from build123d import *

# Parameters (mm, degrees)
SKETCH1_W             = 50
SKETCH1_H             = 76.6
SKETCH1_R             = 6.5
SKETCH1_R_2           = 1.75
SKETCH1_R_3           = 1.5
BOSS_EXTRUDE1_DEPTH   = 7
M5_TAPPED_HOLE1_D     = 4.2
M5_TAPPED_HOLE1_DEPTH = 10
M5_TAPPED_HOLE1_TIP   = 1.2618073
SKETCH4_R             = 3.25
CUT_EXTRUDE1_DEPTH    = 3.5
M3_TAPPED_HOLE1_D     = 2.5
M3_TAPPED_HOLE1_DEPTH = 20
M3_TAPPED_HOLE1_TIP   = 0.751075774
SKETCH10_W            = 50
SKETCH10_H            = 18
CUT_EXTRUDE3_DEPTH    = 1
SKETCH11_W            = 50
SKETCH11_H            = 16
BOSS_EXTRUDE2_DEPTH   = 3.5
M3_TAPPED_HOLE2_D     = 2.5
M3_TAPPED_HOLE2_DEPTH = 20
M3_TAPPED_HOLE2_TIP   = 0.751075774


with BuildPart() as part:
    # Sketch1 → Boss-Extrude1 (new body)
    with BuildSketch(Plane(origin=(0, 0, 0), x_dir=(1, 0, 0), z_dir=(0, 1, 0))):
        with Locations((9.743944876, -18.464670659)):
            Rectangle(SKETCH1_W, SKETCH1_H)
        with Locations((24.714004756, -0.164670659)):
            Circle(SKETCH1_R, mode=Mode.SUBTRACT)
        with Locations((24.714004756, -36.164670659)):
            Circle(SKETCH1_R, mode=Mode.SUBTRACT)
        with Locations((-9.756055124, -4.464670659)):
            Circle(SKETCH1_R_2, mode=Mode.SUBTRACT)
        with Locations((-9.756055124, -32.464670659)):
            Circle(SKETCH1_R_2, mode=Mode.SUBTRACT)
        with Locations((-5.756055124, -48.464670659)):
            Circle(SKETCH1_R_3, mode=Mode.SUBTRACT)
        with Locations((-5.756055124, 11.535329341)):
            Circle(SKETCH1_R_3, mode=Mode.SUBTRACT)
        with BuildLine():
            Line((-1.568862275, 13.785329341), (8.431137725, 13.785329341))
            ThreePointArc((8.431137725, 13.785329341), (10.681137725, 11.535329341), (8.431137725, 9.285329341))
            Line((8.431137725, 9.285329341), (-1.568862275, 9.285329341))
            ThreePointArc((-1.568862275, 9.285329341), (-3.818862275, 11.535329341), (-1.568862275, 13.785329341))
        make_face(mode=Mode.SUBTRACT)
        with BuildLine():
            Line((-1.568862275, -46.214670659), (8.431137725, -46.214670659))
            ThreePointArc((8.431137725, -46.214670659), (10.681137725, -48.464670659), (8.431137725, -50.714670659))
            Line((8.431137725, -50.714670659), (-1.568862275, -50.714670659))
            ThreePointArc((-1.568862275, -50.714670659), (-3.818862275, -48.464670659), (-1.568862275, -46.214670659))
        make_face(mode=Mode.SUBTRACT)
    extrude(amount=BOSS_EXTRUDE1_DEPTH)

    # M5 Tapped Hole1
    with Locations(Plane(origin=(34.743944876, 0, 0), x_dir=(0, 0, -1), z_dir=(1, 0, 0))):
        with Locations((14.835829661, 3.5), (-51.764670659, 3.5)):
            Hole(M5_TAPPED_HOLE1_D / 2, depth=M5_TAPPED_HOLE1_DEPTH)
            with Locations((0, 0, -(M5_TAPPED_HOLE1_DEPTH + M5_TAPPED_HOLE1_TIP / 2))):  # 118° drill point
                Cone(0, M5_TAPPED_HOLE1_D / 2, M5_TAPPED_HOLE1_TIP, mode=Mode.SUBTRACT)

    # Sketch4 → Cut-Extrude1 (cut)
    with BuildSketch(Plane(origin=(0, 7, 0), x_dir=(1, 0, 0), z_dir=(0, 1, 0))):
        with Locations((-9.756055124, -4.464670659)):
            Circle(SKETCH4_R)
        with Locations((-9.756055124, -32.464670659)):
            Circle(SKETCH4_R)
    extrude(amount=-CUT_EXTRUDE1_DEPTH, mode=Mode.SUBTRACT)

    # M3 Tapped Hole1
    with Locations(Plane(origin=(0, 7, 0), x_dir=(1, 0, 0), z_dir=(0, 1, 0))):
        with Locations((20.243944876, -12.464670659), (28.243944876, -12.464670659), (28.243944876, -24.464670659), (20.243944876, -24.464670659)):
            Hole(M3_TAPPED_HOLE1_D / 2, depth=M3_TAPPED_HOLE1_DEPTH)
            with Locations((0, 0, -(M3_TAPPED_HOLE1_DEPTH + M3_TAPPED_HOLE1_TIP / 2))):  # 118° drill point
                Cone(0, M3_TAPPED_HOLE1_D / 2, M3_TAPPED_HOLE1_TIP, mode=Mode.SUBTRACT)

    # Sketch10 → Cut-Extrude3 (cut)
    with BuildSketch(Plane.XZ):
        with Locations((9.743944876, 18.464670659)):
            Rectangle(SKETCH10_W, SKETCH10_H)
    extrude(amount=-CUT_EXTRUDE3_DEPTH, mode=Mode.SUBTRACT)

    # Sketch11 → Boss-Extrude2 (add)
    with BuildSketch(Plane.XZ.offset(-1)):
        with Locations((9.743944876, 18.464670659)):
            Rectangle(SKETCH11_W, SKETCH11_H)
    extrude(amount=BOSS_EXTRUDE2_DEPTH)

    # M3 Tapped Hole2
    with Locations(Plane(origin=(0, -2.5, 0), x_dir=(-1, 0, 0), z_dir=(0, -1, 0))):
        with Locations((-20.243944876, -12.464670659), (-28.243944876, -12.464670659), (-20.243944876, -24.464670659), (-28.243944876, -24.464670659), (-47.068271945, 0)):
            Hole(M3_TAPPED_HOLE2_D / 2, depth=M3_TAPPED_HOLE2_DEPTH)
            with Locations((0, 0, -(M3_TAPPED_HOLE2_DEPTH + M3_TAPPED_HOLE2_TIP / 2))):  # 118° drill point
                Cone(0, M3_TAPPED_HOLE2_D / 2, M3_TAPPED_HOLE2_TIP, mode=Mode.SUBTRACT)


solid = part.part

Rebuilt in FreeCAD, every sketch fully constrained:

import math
import FreeCAD as App
import Part
import Sketcher

V = App.Vector

doc = App.newDocument("Part")
body = doc.addObject("PartDesign::Body", "Body")

# Sketch on XZ plane
sketch1 = body.newObject("Sketcher::SketchObject", "Sketch")
sketch1.AttachmentSupport = (doc.getObject("XZ_Plane"), [""])
sketch1.MapMode = "FlatFace"
sketch1.addGeometry(Part.LineSegment(V(-15.3, -19.8, 0), V(-15.3, 56.8, 0)), False)
sketch1.addGeometry(Part.LineSegment(V(-15.3, 56.8, 0), V(34.7, 56.8, 0)), False)
sketch1.addGeometry(Part.LineSegment(V(34.7, 56.8, 0), V(34.7, -19.8, 0)), False)
sketch1.addGeometry(Part.LineSegment(V(34.7, -19.8, 0), V(-15.3, -19.8, 0)), False)
sketch1.addGeometry(Part.Circle(V(-5.8, 48.5, 0), V(0, 0, 1), 1.5), False)
sketch1.addGeometry(Part.ArcOfCircle(Part.Circle(V(-1.6, 48.5, 0), V(0, 0, 1), 2.2), math.radians(90), math.radians(270)), False)
sketch1.addGeometry(Part.LineSegment(V(-1.6, 46.2, 0), V(8.4, 46.2, 0)), False)
sketch1.addGeometry(Part.ArcOfCircle(Part.Circle(V(8.4, 48.5, 0), V(0, 0, 1), 2.2), math.radians(-90), math.radians(90)), False)
sketch1.addGeometry(Part.LineSegment(V(8.4, 50.7, 0), V(-1.6, 50.7, 0)), False)
sketch1.addGeometry(Part.Circle(V(-9.8, 32.5, 0), V(0, 0, 1), 1.8), False)
sketch1.addGeometry(Part.Circle(V(24.7, 36.2, 0), V(0, 0, 1), 6.5), False)
sketch1.addGeometry(Part.Circle(V(-9.8, 4.5, 0), V(0, 0, 1), 1.8), False)
sketch1.addGeometry(Part.Circle(V(-5.8, -11.5, 0), V(0, 0, 1), 1.5), False)
sketch1.addGeometry(Part.ArcOfCircle(Part.Circle(V(-1.6, -11.5, 0), V(0, 0, 1), 2.2), math.radians(90), math.radians(270)), False)
sketch1.addGeometry(Part.LineSegment(V(-1.6, -13.8, 0), V(8.4, -13.8, 0)), False)
sketch1.addGeometry(Part.ArcOfCircle(Part.Circle(V(8.4, -11.5, 0), V(0, 0, 1), 2.2), math.radians(-90), math.radians(90)), False)
sketch1.addGeometry(Part.LineSegment(V(8.4, -9.3, 0), V(-1.6, -9.3, 0)), False)
sketch1.addGeometry(Part.Circle(V(24.7, 0.2, 0), V(0, 0, 1), 6.5), False)
sketch1.addConstraint(Sketcher.Constraint("Coincident", 0, 2, 1, 1))
sketch1.addConstraint(Sketcher.Constraint("Coincident", 1, 2, 2, 1))
sketch1.addConstraint(Sketcher.Constraint("Coincident", 2, 2, 3, 1))
sketch1.addConstraint(Sketcher.Constraint("Coincident", 3, 2, 0, 1))
sketch1.addConstraint(Sketcher.Constraint("Tangent", 5, 2, 6, 1))
sketch1.addConstraint(Sketcher.Constraint("Tangent", 6, 2, 7, 1))
sketch1.addConstraint(Sketcher.Constraint("Tangent", 7, 2, 8, 1))
sketch1.addConstraint(Sketcher.Constraint("Tangent", 8, 2, 5, 1))
sketch1.addConstraint(Sketcher.Constraint("Tangent", 13, 2, 14, 1))
sketch1.addConstraint(Sketcher.Constraint("Tangent", 14, 2, 15, 1))
sketch1.addConstraint(Sketcher.Constraint("Tangent", 15, 2, 16, 1))
sketch1.addConstraint(Sketcher.Constraint("Tangent", 16, 2, 13, 1))
sketch1.addConstraint(Sketcher.Constraint("Vertical", 0))
sketch1.addConstraint(Sketcher.Constraint("Horizontal", 1))
sketch1.addConstraint(Sketcher.Constraint("Vertical", 2))
sketch1.addConstraint(Sketcher.Constraint("Horizontal", 3))
sketch1.addConstraint(Sketcher.Constraint("Horizontal", 6))
sketch1.addConstraint(Sketcher.Constraint("Horizontal", 8))
sketch1.addConstraint(Sketcher.Constraint("Horizontal", 14))
sketch1.addConstraint(Sketcher.Constraint("Horizontal", 16))
sketch1.addConstraint(Sketcher.Constraint("Equal", 9, 11))
sketch1.addConstraint(Sketcher.Constraint("Equal", 4, 12))
sketch1.addConstraint(Sketcher.Constraint("Equal", 7, 13))
sketch1.addConstraint(Sketcher.Constraint("Equal", 10, 17))
sketch1.addConstraint(Sketcher.Constraint("Horizontal", 4, 3, 5, 3))
sketch1.addConstraint(Sketcher.Constraint("Horizontal", 12, 3, 13, 3))
sketch1.addConstraint(Sketcher.Constraint("Vertical", 9, 3, 11, 3))
sketch1.addConstraint(Sketcher.Constraint("Vertical", 4, 3, 12, 3))
sketch1.addConstraint(Sketcher.Constraint("Vertical", 5, 3, 13, 3))
sketch1.addConstraint(Sketcher.Constraint("Vertical", 7, 3, 15, 3))
sketch1.addConstraint(Sketcher.Constraint("Vertical", 10, 3, 17, 3))
sketch1.addConstraint(Sketcher.Constraint("Diameter", 4, 3.0))
sketch1.addConstraint(Sketcher.Constraint("Diameter", 10, 13.0))
sketch1.addConstraint(Sketcher.Constraint("Diameter", 9, 3.5))
sketch1.addConstraint(Sketcher.Constraint("DistanceX", 1, 1, 1, 2, 50.0))
sketch1.addConstraint(Sketcher.Constraint("DistanceX", 6, 1, 6, 2, 10.0))
sketch1.addConstraint(Sketcher.Constraint("Radius", 5, 2.25))
sketch1.addConstraint(Sketcher.Constraint("DistanceY", 0, 1, 0, 2, 76.6))
sketch1.addConstraint(Sketcher.Constraint("DistanceX", 9, 3, 4, 3, 4.0))
sketch1.addConstraint(Sketcher.Constraint("DistanceY", 9, 3, 4, 3, 16.0))
sketch1.addConstraint(Sketcher.Constraint("DistanceY", 11, 3, 9, 3, 28.0))
sketch1.addConstraint(Sketcher.Constraint("DistanceY", 12, 3, 11, 3, 16.0))
sketch1.addConstraint(Sketcher.Constraint("DistanceY", 17, 3, 10, 3, 36.0))
sketch1.addConstraint(Sketcher.Constraint("DistanceY", 2, 2, 17, 3, 20.0))
sketch1.addConstraint(Sketcher.Constraint("DistanceY", 10, 3, 7, 3, 12.3))
sketch1.addConstraint(Sketcher.Constraint("DistanceX", 0, 2, 4, 3, 9.5))
sketch1.addConstraint(Sketcher.Constraint("DistanceY", -1, 1, 4, 3, 48.464671))
sketch1.addConstraint(Sketcher.Constraint("DistanceX", 4, 3, 10, 3, 30.47006))
sketch1.addConstraint(Sketcher.Constraint("DistanceX", 4, 3, -1, 1, 5.756055))
sketch1.addConstraint(Sketcher.Constraint("DistanceX", 5, 3, -1, 1, 1.568862))
pad1 = body.newObject("PartDesign::Pad", "Pad")
pad1.Profile = sketch1
pad1.Length = 7
pad1.Reversed = True

# Sketch on YZ plane
sketch2 = body.newObject("Sketcher::SketchObject", "Sketch001")
sketch2.AttachmentSupport = (doc.getObject("YZ_Plane"), [""])
sketch2.MapMode = "FlatFace"
sketch2.AttachmentOffset = App.Placement(V(0, 0, 34.743945), App.Rotation())
sketch2.addGeometry(Part.Circle(V(3.5, -14.8, 0), V(0, 0, 1), 2.1), False)
sketch2.addGeometry(Part.Circle(V(3.5, 51.8, 0), V(0, 0, 1), 2.1), False)
sketch2.addConstraint(Sketcher.Constraint("Equal", 0, 1))
sketch2.addConstraint(Sketcher.Constraint("Vertical", 0, 3, 1, 3))
sketch2.addConstraint(Sketcher.Constraint("Diameter", 0, 4.2))
sketch2.addConstraint(Sketcher.Constraint("DistanceX", -1, 1, 0, 3, 3.5))
sketch2.addConstraint(Sketcher.Constraint("DistanceY", 0, 3, 1, 3, 66.6005))
sketch2.addConstraint(Sketcher.Constraint("DistanceY", 0, 3, -1, 1, 14.83583))
doc.recompute()
hole = body.newObject("PartDesign::Hole", "Hole")
hole.Profile = sketch2
hole.ThreadType = "None"
hole.Diameter = 4.2
hole.DepthType = "Dimension"
hole.Depth = 10
hole.DrillPoint = "Angled"
hole.DrillPointAngle = 118

# Sketch on XZ plane
sketch3 = body.newObject("Sketcher::SketchObject", "Sketch002")
sketch3.AttachmentSupport = (doc.getObject("XZ_Plane"), [""])
sketch3.MapMode = "FlatFace"
sketch3.AttachmentOffset = App.Placement(V(0, 0, -7), App.Rotation())
sketch3.addGeometry(Part.Circle(V(-9.8, 4.5, 0), V(0, 0, 1), 3.2), False)
sketch3.addGeometry(Part.Circle(V(-9.8, 32.5, 0), V(0, 0, 1), 3.2), False)
sketch3.addConstraint(Sketcher.Constraint("Equal", 0, 1))
sketch3.addConstraint(Sketcher.Constraint("Vertical", 0, 3, 1, 3))
sketch3.addConstraint(Sketcher.Constraint("Diameter", 0, 6.5))
sketch3.addConstraint(Sketcher.Constraint("DistanceY", 0, 3, 1, 3, 28.0))
sketch3.addConstraint(Sketcher.Constraint("DistanceY", -1, 1, 0, 3, 4.464671))
sketch3.addConstraint(Sketcher.Constraint("DistanceX", 0, 3, -1, 1, 9.756055))
pocket1 = body.newObject("PartDesign::Pocket", "Pocket")
pocket1.Profile = sketch3
pocket1.Length = 3.5
pocket1.Reversed = True

# Sketch on XZ plane
sketch4 = body.newObject("Sketcher::SketchObject", "Sketch003")
sketch4.AttachmentSupport = (doc.getObject("XZ_Plane"), [""])
sketch4.MapMode = "FlatFace"
sketch4.AttachmentOffset = App.Placement(V(0, 0, -7), App.Rotation())
sketch4.addGeometry(Part.Circle(V(20.2, 12.5, 0), V(0, 0, 1), 1.2), False)
sketch4.addGeometry(Part.Circle(V(28.2, 12.5, 0), V(0, 0, 1), 1.2), False)
sketch4.addGeometry(Part.Circle(V(28.2, 24.5, 0), V(0, 0, 1), 1.2), False)
sketch4.addGeometry(Part.Circle(V(20.2, 24.5, 0), V(0, 0, 1), 1.2), False)
sketch4.addConstraint(Sketcher.Constraint("Equal", 0, 1))
sketch4.addConstraint(Sketcher.Constraint("Equal", 1, 2))
sketch4.addConstraint(Sketcher.Constraint("Equal", 2, 3))
sketch4.addConstraint(Sketcher.Constraint("Horizontal", 0, 3, 1, 3))
sketch4.addConstraint(Sketcher.Constraint("Horizontal", 2, 3, 3, 3))
sketch4.addConstraint(Sketcher.Constraint("Vertical", 1, 3, 2, 3))
sketch4.addConstraint(Sketcher.Constraint("Vertical", 0, 3, 3, 3))
sketch4.addConstraint(Sketcher.Constraint("Diameter", 0, 2.5))
sketch4.addConstraint(Sketcher.Constraint("DistanceX", 0, 3, 1, 3, 8.0))
sketch4.addConstraint(Sketcher.Constraint("DistanceY", 1, 3, 2, 3, 12.0))
sketch4.addConstraint(Sketcher.Constraint("DistanceY", -1, 1, 0, 3, 12.464671))
sketch4.addConstraint(Sketcher.Constraint("DistanceX", -1, 1, 0, 3, 20.243945))
doc.recompute()
hole2 = body.newObject("PartDesign::Hole", "Hole001")
hole2.Profile = sketch4
hole2.ThreadType = "None"
hole2.Diameter = 2.5
hole2.DepthType = "Dimension"
hole2.Depth = 20
hole2.DrillPoint = "Angled"
hole2.DrillPointAngle = 118
hole2.Reversed = True

# Sketch on XZ plane
sketch5 = body.newObject("Sketcher::SketchObject", "Sketch004")
sketch5.AttachmentSupport = (doc.getObject("XZ_Plane"), [""])
sketch5.MapMode = "FlatFace"
sketch5.addGeometry(Part.LineSegment(V(-15, 27, 0), V(-15, 9, 0)), False)
sketch5.addGeometry(Part.LineSegment(V(-15, 9, 0), V(35, 9, 0)), False)
sketch5.addGeometry(Part.LineSegment(V(35, 9, 0), V(35, 27, 0)), False)
sketch5.addGeometry(Part.LineSegment(V(35, 27, 0), V(-15, 27, 0)), False)
sketch5.addConstraint(Sketcher.Constraint("Coincident", 0, 2, 1, 1))
sketch5.addConstraint(Sketcher.Constraint("Coincident", 1, 2, 2, 1))
sketch5.addConstraint(Sketcher.Constraint("Coincident", 2, 2, 3, 1))
sketch5.addConstraint(Sketcher.Constraint("Coincident", 3, 2, 0, 1))
sketch5.addConstraint(Sketcher.Constraint("Vertical", 0))
sketch5.addConstraint(Sketcher.Constraint("Horizontal", 1))
sketch5.addConstraint(Sketcher.Constraint("Vertical", 2))
sketch5.addConstraint(Sketcher.Constraint("Horizontal", 3))
sketch5.addConstraint(Sketcher.Constraint("DistanceX", 1, 1, 1, 2, 50.0))
sketch5.addConstraint(Sketcher.Constraint("DistanceY", 0, 2, 0, 1, 18.0))
sketch5.addConstraint(Sketcher.Constraint("DistanceY", -1, 1, 0, 2, 9.464671))
sketch5.addConstraint(Sketcher.Constraint("DistanceX", 0, 2, -1, 1, 15.256055))
pocket2 = body.newObject("PartDesign::Pocket", "Pocket001")
pocket2.Profile = sketch5
pocket2.Length = 1

# Sketch on XZ plane
sketch6 = body.newObject("Sketcher::SketchObject", "Sketch005")
sketch6.AttachmentSupport = (doc.getObject("XZ_Plane"), [""])
sketch6.MapMode = "FlatFace"
sketch6.AttachmentOffset = App.Placement(V(0, 0, -1), App.Rotation())
sketch6.addGeometry(Part.LineSegment(V(-15, 26, 0), V(-15, 10, 0)), False)
sketch6.addGeometry(Part.LineSegment(V(-15, 10, 0), V(35, 10, 0)), False)
sketch6.addGeometry(Part.LineSegment(V(35, 10, 0), V(35, 26, 0)), False)
sketch6.addGeometry(Part.LineSegment(V(35, 26, 0), V(-15, 26, 0)), False)
sketch6.addConstraint(Sketcher.Constraint("Coincident", 0, 2, 1, 1))
sketch6.addConstraint(Sketcher.Constraint("Coincident", 1, 2, 2, 1))
sketch6.addConstraint(Sketcher.Constraint("Coincident", 2, 2, 3, 1))
sketch6.addConstraint(Sketcher.Constraint("Coincident", 3, 2, 0, 1))
sketch6.addConstraint(Sketcher.Constraint("Vertical", 0))
sketch6.addConstraint(Sketcher.Constraint("Horizontal", 1))
sketch6.addConstraint(Sketcher.Constraint("Vertical", 2))
sketch6.addConstraint(Sketcher.Constraint("Horizontal", 3))
sketch6.addConstraint(Sketcher.Constraint("DistanceX", 1, 1, 1, 2, 50.0))
sketch6.addConstraint(Sketcher.Constraint("DistanceY", 0, 2, 0, 1, 16.0))
sketch6.addConstraint(Sketcher.Constraint("DistanceY", -1, 1, 0, 2, 10.464671))
sketch6.addConstraint(Sketcher.Constraint("DistanceX", 0, 2, -1, 1, 15.256055))
pad2 = body.newObject("PartDesign::Pad", "Pad001")
pad2.Profile = sketch6
pad2.Length = 3.5

# Sketch on XZ plane
sketch7 = body.newObject("Sketcher::SketchObject", "Sketch006")
sketch7.AttachmentSupport = (doc.getObject("XZ_Plane"), [""])
sketch7.MapMode = "FlatFace"
sketch7.AttachmentOffset = App.Placement(V(0, 0, 2.5), App.Rotation())
sketch7.addGeometry(Part.Circle(V(20.2, 12.5, 0), V(0, 0, 1), 1.2), False)
sketch7.addGeometry(Part.Circle(V(28.2, 12.5, 0), V(0, 0, 1), 1.2), False)
sketch7.addGeometry(Part.Circle(V(20.2, 24.5, 0), V(0, 0, 1), 1.2), False)
sketch7.addGeometry(Part.Circle(V(28.2, 24.5, 0), V(0, 0, 1), 1.2), False)
sketch7.addGeometry(Part.Circle(V(47.1, 0, 0), V(0, 0, 1), 1.2), False)
sketch7.addConstraint(Sketcher.Constraint("Equal", 0, 1))
sketch7.addConstraint(Sketcher.Constraint("Equal", 1, 2))
sketch7.addConstraint(Sketcher.Constraint("Equal", 2, 3))
sketch7.addConstraint(Sketcher.Constraint("Equal", 3, 4))
sketch7.addConstraint(Sketcher.Constraint("PointOnObject", 4, 3, -1))
sketch7.addConstraint(Sketcher.Constraint("Horizontal", 0, 3, 1, 3))
sketch7.addConstraint(Sketcher.Constraint("Horizontal", 2, 3, 3, 3))
sketch7.addConstraint(Sketcher.Constraint("Vertical", 0, 3, 2, 3))
sketch7.addConstraint(Sketcher.Constraint("Vertical", 1, 3, 3, 3))
sketch7.addConstraint(Sketcher.Constraint("Diameter", 0, 2.5))
sketch7.addConstraint(Sketcher.Constraint("DistanceX", 0, 3, 1, 3, 8.0))
sketch7.addConstraint(Sketcher.Constraint("DistanceY", 0, 3, 2, 3, 12.0))
sketch7.addConstraint(Sketcher.Constraint("DistanceY", -1, 1, 0, 3, 12.464671))
sketch7.addConstraint(Sketcher.Constraint("DistanceX", -1, 1, 4, 3, 47.068272))
sketch7.addConstraint(Sketcher.Constraint("DistanceX", -1, 1, 0, 3, 20.243945))
doc.recompute()
hole3 = body.newObject("PartDesign::Hole", "Hole002")
hole3.Profile = sketch7
hole3.ThreadType = "None"
hole3.Diameter = 2.5
hole3.DepthType = "Dimension"
hole3.Depth = 20
hole3.DrillPoint = "Angled"
hole3.DrillPointAngle = 118

doc.recompute()
